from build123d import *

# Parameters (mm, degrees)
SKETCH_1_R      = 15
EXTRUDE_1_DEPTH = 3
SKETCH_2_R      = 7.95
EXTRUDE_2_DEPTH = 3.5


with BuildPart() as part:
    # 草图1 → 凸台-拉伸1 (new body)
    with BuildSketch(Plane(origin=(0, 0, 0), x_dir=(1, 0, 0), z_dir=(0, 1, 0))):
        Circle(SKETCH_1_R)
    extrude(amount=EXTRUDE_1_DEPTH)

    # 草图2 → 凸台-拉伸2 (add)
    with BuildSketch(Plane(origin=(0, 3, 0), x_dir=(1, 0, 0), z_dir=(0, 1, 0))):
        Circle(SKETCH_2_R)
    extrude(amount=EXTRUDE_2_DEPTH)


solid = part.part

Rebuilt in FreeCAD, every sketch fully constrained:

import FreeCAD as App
import Part
import Sketcher
Q = App.Units.Quantity

doc = App.newDocument("Part")
params = doc.addObject("Spreadsheet::Sheet", "Params")
for row, (alias, value) in enumerate([
    ("sketch1_diameter", "30 mm"),
    ("pad1_length", "3 mm"),
    ("sketch2_diameter", "15.9 mm"),
    ("pad2_length", "3.5 mm"),
], start=1):
    params.set(f"A{row}", alias)
    params.set(f"B{row}", "=" + value)
    params.setAlias(f"B{row}", alias)

body = doc.addObject("PartDesign::Body", "Body")

# Sketch on XZ plane
sketch1 = body.newObject("Sketcher::SketchObject", "Sketch")
sketch1.AttachmentSupport = (doc.getObject("XZ_Plane"), [""])
sketch1.MapMode = "FlatFace"
sketch1.addGeometry(Part.Circle(App.Vector(0, 0, 0), App.Vector(0, 0, 1), 15), False)
sketch1.addConstraint([
    Sketcher.Constraint("Coincident", 0, 3, -1, 1),
    Sketcher.Constraint("Diameter", 0, Q("30 mm")),
])
sketch1.setExpression("Constraints[1]", "Params.sketch1_diameter")
pad1 = body.newObject("PartDesign::Pad", "Pad")
pad1.Profile = sketch1
pad1.setExpression("Length", "Params.pad1_length")
pad1.Reversed = True

# Sketch on XZ plane
sketch2 = body.newObject("Sketcher::SketchObject", "Sketch001")
sketch2.AttachmentSupport = (doc.getObject("XZ_Plane"), [""])
sketch2.MapMode = "FlatFace"
sketch2.AttachmentOffset = App.Placement(App.Vector(0, 0, -3), App.Rotation())
sketch2.addGeometry(Part.Circle(App.Vector(0, 0, 0), App.Vector(0, 0, 1), 8), False)
sketch2.addConstraint([
    Sketcher.Constraint("Coincident", 0, 3, -1, 1),
    Sketcher.Constraint("Diameter", 0, Q("15.9 mm")),
])
sketch2.setExpression("Constraints[1]", "Params.sketch2_diameter")
pad2 = body.newObject("PartDesign::Pad", "Pad001")
pad2.Profile = sketch2
pad2.setExpression("Length", "Params.pad2_length")
pad2.Reversed = True

doc.recompute()
